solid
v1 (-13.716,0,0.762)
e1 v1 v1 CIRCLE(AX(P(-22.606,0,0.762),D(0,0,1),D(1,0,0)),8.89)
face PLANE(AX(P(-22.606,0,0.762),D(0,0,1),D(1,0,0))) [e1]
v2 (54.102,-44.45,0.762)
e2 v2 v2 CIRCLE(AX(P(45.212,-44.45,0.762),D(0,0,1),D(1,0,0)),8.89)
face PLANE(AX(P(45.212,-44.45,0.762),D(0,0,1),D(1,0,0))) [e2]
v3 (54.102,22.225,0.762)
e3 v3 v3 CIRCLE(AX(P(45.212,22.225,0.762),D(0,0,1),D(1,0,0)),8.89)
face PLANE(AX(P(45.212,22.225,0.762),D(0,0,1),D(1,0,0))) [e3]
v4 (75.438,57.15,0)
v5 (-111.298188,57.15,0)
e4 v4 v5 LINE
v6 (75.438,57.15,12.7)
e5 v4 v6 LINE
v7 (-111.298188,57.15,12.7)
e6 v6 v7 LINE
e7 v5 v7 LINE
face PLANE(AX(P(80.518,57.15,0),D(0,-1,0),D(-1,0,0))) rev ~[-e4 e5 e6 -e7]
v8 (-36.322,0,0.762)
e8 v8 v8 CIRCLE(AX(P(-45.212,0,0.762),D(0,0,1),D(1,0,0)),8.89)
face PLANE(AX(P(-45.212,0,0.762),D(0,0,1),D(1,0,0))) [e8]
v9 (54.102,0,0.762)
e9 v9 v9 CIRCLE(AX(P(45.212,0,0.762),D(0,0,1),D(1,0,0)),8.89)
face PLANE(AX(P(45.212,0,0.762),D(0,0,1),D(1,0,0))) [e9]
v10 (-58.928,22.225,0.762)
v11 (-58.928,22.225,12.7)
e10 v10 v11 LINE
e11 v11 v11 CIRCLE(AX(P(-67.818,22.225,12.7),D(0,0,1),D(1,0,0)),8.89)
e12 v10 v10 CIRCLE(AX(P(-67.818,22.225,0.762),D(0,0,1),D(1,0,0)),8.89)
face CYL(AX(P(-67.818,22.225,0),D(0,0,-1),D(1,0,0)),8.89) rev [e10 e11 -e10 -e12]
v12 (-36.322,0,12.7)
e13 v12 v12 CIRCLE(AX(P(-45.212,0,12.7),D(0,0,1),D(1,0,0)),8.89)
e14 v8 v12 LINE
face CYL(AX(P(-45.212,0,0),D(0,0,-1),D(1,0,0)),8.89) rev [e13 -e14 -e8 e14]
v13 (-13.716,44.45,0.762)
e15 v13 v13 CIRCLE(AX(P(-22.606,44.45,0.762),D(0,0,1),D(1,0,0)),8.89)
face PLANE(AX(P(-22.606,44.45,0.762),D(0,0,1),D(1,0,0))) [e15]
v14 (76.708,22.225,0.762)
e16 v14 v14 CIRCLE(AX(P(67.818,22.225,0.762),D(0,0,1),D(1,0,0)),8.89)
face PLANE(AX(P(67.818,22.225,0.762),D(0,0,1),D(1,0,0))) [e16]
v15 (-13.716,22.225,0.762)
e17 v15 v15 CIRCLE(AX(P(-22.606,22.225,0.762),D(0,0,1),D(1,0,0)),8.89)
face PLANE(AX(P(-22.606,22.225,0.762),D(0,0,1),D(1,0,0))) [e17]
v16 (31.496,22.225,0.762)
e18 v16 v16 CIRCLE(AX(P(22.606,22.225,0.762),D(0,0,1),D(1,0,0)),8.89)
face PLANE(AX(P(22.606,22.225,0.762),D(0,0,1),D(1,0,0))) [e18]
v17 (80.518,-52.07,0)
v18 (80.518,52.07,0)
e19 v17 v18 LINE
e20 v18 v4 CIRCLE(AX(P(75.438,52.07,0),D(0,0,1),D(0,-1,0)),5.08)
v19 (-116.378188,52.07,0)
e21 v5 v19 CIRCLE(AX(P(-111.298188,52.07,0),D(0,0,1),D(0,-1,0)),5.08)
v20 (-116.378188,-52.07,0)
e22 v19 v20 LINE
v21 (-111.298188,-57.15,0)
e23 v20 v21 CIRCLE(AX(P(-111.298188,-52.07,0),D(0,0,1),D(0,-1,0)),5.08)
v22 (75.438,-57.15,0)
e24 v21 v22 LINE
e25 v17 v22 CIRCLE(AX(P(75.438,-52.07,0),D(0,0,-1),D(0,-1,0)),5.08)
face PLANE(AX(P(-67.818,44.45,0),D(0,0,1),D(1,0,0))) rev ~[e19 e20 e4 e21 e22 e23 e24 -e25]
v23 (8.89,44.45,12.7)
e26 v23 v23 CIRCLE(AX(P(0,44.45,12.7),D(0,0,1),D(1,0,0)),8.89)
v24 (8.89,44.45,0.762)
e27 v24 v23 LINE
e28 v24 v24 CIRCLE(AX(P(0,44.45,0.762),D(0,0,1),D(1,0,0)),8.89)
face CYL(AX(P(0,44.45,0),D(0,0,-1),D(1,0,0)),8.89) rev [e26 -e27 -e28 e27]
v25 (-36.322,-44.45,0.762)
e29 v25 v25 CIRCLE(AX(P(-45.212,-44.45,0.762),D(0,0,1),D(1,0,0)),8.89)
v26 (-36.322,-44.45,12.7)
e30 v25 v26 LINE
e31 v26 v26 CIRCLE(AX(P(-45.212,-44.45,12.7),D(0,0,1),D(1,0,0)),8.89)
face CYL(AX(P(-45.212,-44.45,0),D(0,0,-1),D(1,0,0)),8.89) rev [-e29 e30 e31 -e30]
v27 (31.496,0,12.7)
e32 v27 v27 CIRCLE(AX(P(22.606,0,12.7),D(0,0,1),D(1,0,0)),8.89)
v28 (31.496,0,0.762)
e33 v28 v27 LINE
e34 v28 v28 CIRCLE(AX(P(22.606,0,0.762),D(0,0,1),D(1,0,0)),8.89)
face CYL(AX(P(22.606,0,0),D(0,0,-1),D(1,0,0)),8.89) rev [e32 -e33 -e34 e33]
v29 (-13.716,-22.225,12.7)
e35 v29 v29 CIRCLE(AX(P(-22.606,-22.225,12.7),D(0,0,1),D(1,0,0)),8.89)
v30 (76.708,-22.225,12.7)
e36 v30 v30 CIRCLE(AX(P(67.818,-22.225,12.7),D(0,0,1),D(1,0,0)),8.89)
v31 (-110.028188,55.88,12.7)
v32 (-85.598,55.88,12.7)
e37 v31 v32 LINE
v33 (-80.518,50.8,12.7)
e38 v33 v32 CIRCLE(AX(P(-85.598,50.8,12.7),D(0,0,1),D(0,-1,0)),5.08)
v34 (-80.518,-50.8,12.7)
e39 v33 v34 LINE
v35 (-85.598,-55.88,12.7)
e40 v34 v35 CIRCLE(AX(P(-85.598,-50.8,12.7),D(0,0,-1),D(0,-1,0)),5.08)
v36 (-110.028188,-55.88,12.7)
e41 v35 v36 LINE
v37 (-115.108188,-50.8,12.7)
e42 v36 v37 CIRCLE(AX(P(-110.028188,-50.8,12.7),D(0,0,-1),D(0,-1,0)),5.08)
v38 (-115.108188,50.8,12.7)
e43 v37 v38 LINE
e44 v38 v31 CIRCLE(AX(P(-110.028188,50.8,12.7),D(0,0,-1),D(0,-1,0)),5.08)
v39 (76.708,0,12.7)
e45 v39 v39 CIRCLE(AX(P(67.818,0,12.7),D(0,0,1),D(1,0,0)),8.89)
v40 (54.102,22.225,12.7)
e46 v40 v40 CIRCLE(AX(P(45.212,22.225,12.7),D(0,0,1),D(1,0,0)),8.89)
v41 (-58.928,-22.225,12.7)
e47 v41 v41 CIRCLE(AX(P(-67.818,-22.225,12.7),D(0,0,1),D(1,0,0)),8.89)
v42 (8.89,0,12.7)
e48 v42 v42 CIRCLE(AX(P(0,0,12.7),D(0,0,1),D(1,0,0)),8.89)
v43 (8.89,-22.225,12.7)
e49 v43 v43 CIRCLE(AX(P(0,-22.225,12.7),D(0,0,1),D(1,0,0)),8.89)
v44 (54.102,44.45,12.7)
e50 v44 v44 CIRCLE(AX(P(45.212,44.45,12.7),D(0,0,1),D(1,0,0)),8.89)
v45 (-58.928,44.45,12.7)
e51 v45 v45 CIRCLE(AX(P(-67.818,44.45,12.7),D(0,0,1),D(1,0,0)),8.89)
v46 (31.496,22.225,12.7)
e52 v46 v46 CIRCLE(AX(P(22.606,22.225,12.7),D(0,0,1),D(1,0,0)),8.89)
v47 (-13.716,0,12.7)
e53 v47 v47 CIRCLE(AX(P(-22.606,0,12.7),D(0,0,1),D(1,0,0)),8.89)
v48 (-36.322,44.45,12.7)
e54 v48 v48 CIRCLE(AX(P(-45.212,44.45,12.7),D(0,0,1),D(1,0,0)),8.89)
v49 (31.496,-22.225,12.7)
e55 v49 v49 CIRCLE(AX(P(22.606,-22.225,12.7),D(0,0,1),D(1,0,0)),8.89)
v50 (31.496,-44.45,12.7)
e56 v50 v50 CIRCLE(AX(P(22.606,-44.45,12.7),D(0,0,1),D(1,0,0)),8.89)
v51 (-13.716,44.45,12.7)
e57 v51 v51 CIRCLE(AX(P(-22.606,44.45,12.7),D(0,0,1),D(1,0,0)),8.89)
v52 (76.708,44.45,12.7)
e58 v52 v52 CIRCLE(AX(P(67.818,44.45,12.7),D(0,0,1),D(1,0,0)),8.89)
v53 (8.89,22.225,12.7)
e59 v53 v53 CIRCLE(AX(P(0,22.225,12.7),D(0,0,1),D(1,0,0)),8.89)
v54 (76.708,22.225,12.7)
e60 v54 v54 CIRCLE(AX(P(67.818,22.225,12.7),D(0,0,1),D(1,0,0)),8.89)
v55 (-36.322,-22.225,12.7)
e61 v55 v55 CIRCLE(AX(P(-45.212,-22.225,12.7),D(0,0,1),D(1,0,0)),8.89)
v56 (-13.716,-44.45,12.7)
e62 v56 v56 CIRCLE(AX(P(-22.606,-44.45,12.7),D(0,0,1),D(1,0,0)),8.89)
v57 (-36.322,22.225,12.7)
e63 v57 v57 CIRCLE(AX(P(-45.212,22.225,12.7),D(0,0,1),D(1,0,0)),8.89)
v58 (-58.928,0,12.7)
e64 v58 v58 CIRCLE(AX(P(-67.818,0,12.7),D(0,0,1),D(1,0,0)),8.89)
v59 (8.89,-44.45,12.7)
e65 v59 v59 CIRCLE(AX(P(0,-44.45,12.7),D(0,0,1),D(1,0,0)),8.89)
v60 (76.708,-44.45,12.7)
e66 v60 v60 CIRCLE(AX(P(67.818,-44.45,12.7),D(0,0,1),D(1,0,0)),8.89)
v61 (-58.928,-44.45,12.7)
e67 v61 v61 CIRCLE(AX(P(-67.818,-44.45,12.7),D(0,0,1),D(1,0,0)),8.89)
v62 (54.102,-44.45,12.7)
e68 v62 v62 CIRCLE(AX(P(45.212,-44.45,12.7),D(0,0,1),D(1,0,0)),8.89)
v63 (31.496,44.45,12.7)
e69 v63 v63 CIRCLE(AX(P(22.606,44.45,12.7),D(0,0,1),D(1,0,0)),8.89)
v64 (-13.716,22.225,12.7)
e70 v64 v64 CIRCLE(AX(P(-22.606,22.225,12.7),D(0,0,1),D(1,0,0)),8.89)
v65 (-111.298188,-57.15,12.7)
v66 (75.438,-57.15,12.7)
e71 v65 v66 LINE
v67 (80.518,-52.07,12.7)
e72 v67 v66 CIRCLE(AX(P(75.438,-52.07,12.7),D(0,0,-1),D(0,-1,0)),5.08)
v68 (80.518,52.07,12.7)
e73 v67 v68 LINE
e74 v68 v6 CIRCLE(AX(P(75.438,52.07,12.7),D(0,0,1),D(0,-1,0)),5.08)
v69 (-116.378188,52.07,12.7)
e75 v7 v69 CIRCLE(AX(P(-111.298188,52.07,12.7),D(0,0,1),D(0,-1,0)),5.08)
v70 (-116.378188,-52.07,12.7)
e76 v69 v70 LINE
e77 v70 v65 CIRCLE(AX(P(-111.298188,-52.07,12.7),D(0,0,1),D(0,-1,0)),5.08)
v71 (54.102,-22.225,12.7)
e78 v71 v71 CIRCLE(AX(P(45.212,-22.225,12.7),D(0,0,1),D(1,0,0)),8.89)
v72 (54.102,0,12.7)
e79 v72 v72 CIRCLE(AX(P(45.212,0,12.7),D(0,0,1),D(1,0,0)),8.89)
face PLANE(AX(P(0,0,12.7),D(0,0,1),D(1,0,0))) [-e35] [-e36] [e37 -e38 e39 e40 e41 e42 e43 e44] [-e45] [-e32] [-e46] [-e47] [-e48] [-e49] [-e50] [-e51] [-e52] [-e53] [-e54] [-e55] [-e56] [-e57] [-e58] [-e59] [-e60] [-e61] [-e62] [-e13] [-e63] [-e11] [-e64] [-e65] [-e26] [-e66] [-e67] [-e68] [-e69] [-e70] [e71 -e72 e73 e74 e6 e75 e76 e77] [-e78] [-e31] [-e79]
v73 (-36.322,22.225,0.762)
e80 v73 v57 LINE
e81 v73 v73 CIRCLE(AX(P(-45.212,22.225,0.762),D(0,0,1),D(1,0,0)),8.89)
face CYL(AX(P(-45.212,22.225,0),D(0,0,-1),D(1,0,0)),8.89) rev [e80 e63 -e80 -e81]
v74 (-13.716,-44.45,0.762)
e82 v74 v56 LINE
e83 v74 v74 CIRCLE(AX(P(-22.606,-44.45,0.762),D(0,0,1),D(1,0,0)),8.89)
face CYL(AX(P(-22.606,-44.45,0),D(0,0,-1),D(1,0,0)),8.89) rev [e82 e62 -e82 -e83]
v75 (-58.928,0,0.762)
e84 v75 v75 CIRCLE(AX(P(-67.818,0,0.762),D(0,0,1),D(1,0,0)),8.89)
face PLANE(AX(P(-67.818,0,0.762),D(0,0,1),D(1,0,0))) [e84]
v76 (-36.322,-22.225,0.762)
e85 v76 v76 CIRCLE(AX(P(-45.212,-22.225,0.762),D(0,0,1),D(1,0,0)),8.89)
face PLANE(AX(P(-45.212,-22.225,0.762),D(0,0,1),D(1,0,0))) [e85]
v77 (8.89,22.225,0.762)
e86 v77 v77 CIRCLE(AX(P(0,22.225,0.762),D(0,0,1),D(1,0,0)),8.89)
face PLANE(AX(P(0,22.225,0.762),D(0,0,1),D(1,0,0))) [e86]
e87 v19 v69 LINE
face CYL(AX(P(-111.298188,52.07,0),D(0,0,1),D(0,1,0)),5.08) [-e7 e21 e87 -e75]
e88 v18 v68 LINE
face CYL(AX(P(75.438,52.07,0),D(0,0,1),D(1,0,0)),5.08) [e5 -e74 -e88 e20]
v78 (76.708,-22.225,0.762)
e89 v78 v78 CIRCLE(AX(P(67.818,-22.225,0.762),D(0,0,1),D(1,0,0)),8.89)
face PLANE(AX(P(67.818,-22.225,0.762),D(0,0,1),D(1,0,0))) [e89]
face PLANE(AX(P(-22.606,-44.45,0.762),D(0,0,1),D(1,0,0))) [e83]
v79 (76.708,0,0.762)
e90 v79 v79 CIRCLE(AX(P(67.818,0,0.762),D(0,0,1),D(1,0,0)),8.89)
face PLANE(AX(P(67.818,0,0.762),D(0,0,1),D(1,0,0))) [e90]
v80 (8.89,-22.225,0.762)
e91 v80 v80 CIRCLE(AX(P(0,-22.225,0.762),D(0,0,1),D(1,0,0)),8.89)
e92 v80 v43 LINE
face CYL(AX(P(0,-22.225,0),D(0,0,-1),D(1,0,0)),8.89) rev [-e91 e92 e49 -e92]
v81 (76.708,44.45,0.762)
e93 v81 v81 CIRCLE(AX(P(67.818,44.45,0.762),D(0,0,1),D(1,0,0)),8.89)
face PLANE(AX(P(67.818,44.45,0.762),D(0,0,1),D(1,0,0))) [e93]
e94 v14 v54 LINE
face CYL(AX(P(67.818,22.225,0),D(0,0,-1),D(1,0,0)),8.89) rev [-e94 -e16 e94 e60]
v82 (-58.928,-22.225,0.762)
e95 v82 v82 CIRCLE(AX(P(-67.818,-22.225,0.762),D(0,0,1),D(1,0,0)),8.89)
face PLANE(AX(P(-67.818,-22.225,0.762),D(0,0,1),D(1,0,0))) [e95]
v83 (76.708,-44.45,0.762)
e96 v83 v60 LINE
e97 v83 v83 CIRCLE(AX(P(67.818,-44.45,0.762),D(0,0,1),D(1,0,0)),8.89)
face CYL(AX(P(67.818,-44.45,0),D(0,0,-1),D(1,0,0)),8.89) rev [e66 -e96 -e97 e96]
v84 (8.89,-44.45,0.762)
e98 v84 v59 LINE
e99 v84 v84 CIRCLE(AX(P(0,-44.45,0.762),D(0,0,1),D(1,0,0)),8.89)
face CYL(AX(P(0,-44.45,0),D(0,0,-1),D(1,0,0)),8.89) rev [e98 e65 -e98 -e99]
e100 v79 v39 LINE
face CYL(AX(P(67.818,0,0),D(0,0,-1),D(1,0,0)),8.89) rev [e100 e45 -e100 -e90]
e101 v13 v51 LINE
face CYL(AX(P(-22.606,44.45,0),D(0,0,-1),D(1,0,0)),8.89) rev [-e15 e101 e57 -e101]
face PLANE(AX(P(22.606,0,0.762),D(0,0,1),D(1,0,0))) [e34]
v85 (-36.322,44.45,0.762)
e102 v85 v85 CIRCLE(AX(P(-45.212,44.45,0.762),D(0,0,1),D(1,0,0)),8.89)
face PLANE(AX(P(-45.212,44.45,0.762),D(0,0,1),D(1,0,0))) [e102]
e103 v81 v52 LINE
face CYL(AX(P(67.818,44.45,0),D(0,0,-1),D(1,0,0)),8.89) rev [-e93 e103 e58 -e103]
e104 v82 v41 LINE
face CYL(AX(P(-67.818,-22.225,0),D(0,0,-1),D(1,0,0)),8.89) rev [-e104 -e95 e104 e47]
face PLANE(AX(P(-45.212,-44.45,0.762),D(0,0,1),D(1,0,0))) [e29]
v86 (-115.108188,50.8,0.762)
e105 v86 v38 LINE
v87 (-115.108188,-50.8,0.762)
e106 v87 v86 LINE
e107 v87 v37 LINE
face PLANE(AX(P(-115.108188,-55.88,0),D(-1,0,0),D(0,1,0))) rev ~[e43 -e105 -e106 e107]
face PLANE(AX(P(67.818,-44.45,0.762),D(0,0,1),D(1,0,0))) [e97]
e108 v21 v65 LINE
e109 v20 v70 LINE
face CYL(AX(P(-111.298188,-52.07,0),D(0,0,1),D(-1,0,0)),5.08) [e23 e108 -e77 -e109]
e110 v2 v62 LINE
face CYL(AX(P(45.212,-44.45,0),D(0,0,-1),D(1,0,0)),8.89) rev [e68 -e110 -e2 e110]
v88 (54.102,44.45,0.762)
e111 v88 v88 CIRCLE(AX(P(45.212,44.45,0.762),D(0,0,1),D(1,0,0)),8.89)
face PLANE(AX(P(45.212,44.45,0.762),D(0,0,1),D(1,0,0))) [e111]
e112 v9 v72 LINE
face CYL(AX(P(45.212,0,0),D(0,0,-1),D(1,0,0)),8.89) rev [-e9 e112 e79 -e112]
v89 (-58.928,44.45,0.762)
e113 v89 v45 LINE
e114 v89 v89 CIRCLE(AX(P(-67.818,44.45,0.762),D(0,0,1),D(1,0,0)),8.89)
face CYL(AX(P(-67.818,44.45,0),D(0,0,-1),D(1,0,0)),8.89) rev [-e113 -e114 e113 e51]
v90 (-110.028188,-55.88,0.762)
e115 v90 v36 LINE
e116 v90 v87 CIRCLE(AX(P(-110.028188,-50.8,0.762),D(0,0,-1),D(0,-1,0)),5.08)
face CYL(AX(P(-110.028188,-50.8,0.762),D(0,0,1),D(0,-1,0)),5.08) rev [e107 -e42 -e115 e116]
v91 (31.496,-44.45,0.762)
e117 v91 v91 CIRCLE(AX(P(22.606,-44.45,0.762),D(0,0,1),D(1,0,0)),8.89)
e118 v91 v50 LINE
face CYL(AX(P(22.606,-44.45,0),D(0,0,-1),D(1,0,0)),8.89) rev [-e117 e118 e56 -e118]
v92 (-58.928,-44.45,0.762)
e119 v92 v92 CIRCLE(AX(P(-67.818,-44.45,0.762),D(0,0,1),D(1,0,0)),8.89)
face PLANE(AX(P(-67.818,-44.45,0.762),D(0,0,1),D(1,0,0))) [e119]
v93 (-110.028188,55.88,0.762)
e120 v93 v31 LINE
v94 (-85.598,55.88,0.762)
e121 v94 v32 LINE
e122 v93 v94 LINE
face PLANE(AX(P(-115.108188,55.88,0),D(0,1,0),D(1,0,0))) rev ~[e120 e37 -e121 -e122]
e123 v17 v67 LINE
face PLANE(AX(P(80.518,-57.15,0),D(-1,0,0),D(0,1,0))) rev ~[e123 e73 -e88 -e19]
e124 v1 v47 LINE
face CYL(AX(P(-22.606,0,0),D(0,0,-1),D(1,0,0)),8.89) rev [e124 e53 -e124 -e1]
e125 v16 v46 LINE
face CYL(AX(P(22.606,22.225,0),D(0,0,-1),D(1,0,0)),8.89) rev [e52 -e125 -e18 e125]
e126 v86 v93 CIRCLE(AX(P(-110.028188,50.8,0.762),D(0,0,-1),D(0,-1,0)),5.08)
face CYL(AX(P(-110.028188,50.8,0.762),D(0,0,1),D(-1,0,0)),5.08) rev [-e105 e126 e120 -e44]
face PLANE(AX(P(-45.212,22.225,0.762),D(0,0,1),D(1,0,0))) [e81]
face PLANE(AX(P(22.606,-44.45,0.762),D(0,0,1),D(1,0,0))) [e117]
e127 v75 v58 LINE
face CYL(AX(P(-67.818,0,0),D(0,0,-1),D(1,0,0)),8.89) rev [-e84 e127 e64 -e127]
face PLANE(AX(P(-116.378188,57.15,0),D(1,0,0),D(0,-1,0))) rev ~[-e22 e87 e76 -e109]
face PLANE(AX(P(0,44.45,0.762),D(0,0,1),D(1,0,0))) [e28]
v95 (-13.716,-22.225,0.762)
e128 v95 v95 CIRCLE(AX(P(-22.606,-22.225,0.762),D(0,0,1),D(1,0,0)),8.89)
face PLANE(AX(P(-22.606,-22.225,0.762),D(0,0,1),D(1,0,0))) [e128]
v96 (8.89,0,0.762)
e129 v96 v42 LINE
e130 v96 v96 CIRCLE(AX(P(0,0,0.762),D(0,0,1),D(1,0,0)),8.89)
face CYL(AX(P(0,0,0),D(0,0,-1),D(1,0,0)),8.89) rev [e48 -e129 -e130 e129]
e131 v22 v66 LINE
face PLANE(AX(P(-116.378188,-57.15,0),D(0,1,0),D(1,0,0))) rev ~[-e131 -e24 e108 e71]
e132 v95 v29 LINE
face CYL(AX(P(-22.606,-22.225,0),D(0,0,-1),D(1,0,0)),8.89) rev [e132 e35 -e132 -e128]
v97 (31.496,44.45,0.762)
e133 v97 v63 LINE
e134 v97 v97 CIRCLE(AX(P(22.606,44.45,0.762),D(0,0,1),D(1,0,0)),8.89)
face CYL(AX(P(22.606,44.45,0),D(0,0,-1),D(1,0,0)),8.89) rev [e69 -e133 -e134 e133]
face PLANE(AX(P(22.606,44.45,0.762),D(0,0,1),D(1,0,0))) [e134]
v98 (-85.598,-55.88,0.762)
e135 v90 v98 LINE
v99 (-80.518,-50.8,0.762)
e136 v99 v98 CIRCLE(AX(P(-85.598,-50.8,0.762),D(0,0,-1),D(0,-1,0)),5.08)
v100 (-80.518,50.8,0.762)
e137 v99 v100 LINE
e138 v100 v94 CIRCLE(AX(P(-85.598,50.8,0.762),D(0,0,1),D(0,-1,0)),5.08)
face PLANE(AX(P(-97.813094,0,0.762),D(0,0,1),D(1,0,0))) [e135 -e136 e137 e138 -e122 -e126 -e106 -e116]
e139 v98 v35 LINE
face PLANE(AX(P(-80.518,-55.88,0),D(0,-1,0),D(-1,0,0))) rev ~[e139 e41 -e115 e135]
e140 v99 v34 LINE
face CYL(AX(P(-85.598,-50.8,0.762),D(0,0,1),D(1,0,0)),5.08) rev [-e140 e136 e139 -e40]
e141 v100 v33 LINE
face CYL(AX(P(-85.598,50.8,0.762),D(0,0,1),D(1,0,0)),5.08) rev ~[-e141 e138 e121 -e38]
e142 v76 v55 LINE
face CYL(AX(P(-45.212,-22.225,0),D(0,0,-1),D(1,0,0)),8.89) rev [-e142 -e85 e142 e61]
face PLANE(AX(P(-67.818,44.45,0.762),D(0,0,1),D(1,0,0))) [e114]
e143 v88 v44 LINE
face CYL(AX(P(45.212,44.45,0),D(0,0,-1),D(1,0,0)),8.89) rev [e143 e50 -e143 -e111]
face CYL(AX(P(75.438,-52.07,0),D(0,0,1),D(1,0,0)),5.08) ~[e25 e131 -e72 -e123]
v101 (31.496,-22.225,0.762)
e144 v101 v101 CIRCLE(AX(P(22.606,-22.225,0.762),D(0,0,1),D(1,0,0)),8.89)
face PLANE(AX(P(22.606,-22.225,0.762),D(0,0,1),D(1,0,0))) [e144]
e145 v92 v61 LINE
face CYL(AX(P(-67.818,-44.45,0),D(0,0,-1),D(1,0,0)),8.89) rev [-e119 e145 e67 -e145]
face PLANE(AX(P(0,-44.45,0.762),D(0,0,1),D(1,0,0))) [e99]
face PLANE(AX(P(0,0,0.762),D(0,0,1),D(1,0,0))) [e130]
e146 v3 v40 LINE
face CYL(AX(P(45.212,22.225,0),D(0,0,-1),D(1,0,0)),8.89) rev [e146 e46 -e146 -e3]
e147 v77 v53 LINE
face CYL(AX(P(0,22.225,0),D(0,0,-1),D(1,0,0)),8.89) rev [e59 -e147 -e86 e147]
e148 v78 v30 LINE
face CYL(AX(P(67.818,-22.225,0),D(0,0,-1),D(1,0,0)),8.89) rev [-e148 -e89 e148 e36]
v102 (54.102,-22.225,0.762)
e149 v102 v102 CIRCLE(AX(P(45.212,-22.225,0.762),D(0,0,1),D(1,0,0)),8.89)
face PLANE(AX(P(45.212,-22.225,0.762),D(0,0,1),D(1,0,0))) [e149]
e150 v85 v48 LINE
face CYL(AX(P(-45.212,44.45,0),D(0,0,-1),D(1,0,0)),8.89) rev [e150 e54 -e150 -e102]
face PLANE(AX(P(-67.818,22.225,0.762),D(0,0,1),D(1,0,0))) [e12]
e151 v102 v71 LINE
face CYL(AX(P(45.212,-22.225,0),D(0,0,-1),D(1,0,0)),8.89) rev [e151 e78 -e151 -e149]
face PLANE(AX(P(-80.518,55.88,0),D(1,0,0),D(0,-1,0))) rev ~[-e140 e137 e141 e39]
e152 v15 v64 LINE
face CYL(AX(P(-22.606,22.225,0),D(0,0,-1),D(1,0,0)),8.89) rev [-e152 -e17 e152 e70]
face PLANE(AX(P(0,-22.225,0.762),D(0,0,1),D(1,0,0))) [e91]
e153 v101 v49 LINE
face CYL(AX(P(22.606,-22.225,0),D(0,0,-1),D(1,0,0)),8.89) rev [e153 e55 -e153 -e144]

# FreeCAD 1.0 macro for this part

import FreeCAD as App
import Part
import Sketcher
from FreeCAD import Vector
Q = App.Units.Quantity


def edges_at(feature, points):
    """Names of the edges that pass closest to the given points."""
    edges = feature.Shape.Edges
    near = lambda p: min(range(len(edges)), key=lambda i: edges[i].distToShape(Part.Vertex(*p))[0])
    return sorted({f"Edge{near(p) + 1}" for p in points})

doc = App.newDocument("Part")
body = doc.addObject("PartDesign::Body", "Body")

# Sketch on XY plane
sketch1 = body.newObject("Sketcher::SketchObject", "Sketch")
sketch1.AttachmentSupport = (doc.getObject("XY_Plane"), [""])
sketch1.MapMode = "FlatFace"
sketch1.addGeometry(Part.LineSegment(Vector(81, -57, 0), Vector(81, 57, 0)), False)
sketch1.addGeometry(Part.LineSegment(Vector(81, 57, 0), Vector(-116, 57, 0)), False)
sketch1.addGeometry(Part.LineSegment(Vector(-116, 57, 0), Vector(-116, -57, 0)), False)
sketch1.addGeometry(Part.LineSegment(Vector(-116, -57, 0), Vector(81, -57, 0)), False)
sketch1.addGeometry(Part.LineSegment(Vector(-81, 56, 0), Vector(-81, -56, 0)), False)
sketch1.addGeometry(Part.LineSegment(Vector(-81, -56, 0), Vector(-115, -56, 0)), False)
sketch1.addGeometry(Part.LineSegment(Vector(-115, -56, 0), Vector(-115, 56, 0)), False)
sketch1.addGeometry(Part.LineSegment(Vector(-115, 56, 0), Vector(-81, 56, 0)), False)
sketch1.addGeometry(Part.Circle(Vector(-68, -44, 0), Vector(0, 0, 1), 9), False)
sketch1.addGeometry(Part.Circle(Vector(-45, -44, 0), Vector(0, 0, 1), 9), False)
sketch1.addGeometry(Part.Circle(Vector(-23, -44, 0), Vector(0, 0, 1), 9), False)
sketch1.addGeometry(Part.Circle(Vector(-68, -22, 0), Vector(0, 0, 1), 9), False)
sketch1.addGeometry(Part.Circle(Vector(-45, -22, 0), Vector(0, 0, 1), 9), False)
sketch1.addGeometry(Part.Circle(Vector(-68, 0, 0), Vector(0, 0, 1), 9), False)
sketch1.addGeometry(Part.Circle(Vector(-45, 0, 0), Vector(0, 0, 1), 9), False)
sketch1.addGeometry(Part.Circle(Vector(-23, -22, 0), Vector(0, 0, 1), 9), False)
sketch1.addGeometry(Part.Circle(Vector(-23, 0, 0), Vector(0, 0, 1), 9), False)
sketch1.addGeometry(Part.Circle(Vector(0, -44, 0), Vector(0, 0, 1), 9), False)
sketch1.addGeometry(Part.Circle(Vector(23, -44, 0), Vector(0, 0, 1), 9), False)
sketch1.addGeometry(Part.Circle(Vector(45, -44, 0), Vector(0, 0, 1), 9), False)
sketch1.addGeometry(Part.Circle(Vector(68, -44, 0), Vector(0, 0, 1), 9), False)
sketch1.addGeometry(Part.Circle(Vector(0, -22, 0), Vector(0, 0, 1), 9), False)
sketch1.addGeometry(Part.Circle(Vector(23, -22, 0), Vector(0, 0, 1), 9), False)
sketch1.addGeometry(Part.Circle(Vector(0, 0, 0), Vector(0, 0, 1), 9), False)
sketch1.addGeometry(Part.Circle(Vector(23, 0, 0), Vector(0, 0, 1), 9), False)
sketch1.addGeometry(Part.Circle(Vector(45, -22, 0), Vector(0, 0, 1), 9), False)
sketch1.addGeometry(Part.Circle(Vector(68, -22, 0), Vector(0, 0, 1), 9), False)
sketch1.addGeometry(Part.Circle(Vector(45, 0, 0), Vector(0, 0, 1), 9), False)
sketch1.addGeometry(Part.Circle(Vector(68, 0, 0), Vector(0, 0, 1), 9), False)
sketch1.addGeometry(Part.Circle(Vector(-68, 22, 0), Vector(0, 0, 1), 9), False)
sketch1.addGeometry(Part.Circle(Vector(-45, 22, 0), Vector(0, 0, 1), 9), False)
sketch1.addGeometry(Part.Circle(Vector(-23, 22, 0), Vector(0, 0, 1), 9), False)
sketch1.addGeometry(Part.Circle(Vector(-68, 44, 0), Vector(0, 0, 1), 9), False)
sketch1.addGeometry(Part.Circle(Vector(-45, 44, 0), Vector(0, 0, 1), 9), False)
sketch1.addGeometry(Part.Circle(Vector(-23, 44, 0), Vector(0, 0, 1), 9), False)
sketch1.addGeometry(Part.Circle(Vector(0, 22, 0), Vector(0, 0, 1), 9), False)
sketch1.addGeometry(Part.Circle(Vector(23, 22, 0), Vector(0, 0, 1), 9), False)
sketch1.addGeometry(Part.Circle(Vector(45, 22, 0), Vector(0, 0, 1), 9), False)
sketch1.addGeometry(Part.Circle(Vector(68, 22, 0), Vector(0, 0, 1), 9), False)
sketch1.addGeometry(Part.Circle(Vector(0, 44, 0), Vector(0, 0, 1), 9), False)
sketch1.addGeometry(Part.Circle(Vector(23, 44, 0), Vector(0, 0, 1), 9), False)
sketch1.addGeometry(Part.Circle(Vector(45, 44, 0), Vector(0, 0, 1), 9), False)
sketch1.addGeometry(Part.Circle(Vector(68, 44, 0), Vector(0, 0, 1), 9), False)
sketch1.addConstraint(Sketcher.Constraint("Coincident", 0, 2, 1, 1))
sketch1.addConstraint(Sketcher.Constraint("Coincident", 1, 2, 2, 1))
sketch1.addConstraint(Sketcher.Constraint("Coincident", 2, 2, 3, 1))
sketch1.addConstraint(Sketcher.Constraint("Coincident", 3, 2, 0, 1))
sketch1.addConstraint(Sketcher.Constraint("Coincident", 4, 2, 5, 1))
sketch1.addConstraint(Sketcher.Constraint("Coincident", 5, 2, 6, 1))
sketch1.addConstraint(Sketcher.Constraint("Coincident", 6, 2, 7, 1))
sketch1.addConstraint(Sketcher.Constraint("Coincident", 7, 2, 4, 1))
sketch1.addConstraint(Sketcher.Constraint("Vertical", 0))
sketch1.addConstraint(Sketcher.Constraint("Horizontal", 1))
sketch1.addConstraint(Sketcher.Constraint("Vertical", 2))
sketch1.addConstraint(Sketcher.Constraint("Horizontal", 3))
sketch1.addConstraint(Sketcher.Constraint("Vertical", 4))
sketch1.addConstraint(Sketcher.Constraint("Horizontal", 5))
sketch1.addConstraint(Sketcher.Constraint("Vertical", 6))
sketch1.addConstraint(Sketcher.Constraint("Horizontal", 7))
sketch1.addConstraint(Sketcher.Constraint("Coincident", 23, 3, -1, 1))
sketch1.addConstraint(Sketcher.Constraint("Equal", 8, 9))
sketch1.addConstraint(Sketcher.Constraint("Equal", 9, 10))
sketch1.addConstraint(Sketcher.Constraint("Equal", 10, 11))
sketch1.addConstraint(Sketcher.Constraint("Equal", 11, 12))
sketch1.addConstraint(Sketcher.Constraint("Equal", 12, 13))
sketch1.addConstraint(Sketcher.Constraint("Equal", 13, 14))
sketch1.addConstraint(Sketcher.Constraint("Equal", 14, 15))
sketch1.addConstraint(Sketcher.Constraint("Equal", 15, 16))
sketch1.addConstraint(Sketcher.Constraint("Equal", 16, 17))
sketch1.addConstraint(Sketcher.Constraint("Equal", 17, 18))
sketch1.addConstraint(Sketcher.Constraint("Equal", 18, 19))
sketch1.addConstraint(Sketcher.Constraint("Equal", 19, 20))
sketch1.addConstraint(Sketcher.Constraint("Equal", 20, 21))
sketch1.addConstraint(Sketcher.Constraint("Equal", 21, 22))
sketch1.addConstraint(Sketcher.Constraint("Equal", 22, 23))
sketch1.addConstraint(Sketcher.Constraint("Equal", 23, 24))
sketch1.addConstraint(Sketcher.Constraint("Equal", 24, 25))
sketch1.addConstraint(Sketcher.Constraint("Equal", 25, 26))
sketch1.addConstraint(Sketcher.Constraint("Equal", 26, 27))
sketch1.addConstraint(Sketcher.Constraint("Equal", 27, 28))
sketch1.addConstraint(Sketcher.Constraint("Equal", 28, 29))
sketch1.addConstraint(Sketcher.Constraint("Equal", 29, 30))
sketch1.addConstraint(Sketcher.Constraint("Equal", 30, 31))
sketch1.addConstraint(Sketcher.Constraint("Equal", 31, 32))
sketch1.addConstraint(Sketcher.Constraint("Equal", 32, 33))
sketch1.addConstraint(Sketcher.Constraint("Equal", 33, 34))
sketch1.addConstraint(Sketcher.Constraint("Equal", 34, 35))
sketch1.addConstraint(Sketcher.Constraint("Equal", 35, 36))
sketch1.addConstraint(Sketcher.Constraint("Equal", 36, 37))
sketch1.addConstraint(Sketcher.Constraint("Equal", 37, 38))
sketch1.addConstraint(Sketcher.Constraint("Equal", 38, 39))
sketch1.addConstraint(Sketcher.Constraint("Equal", 39, 40))
sketch1.addConstraint(Sketcher.Constraint("Equal", 40, 41))
sketch1.addConstraint(Sketcher.Constraint("Equal", 41, 42))
sketch1.addConstraint(Sketcher.Constraint("Symmetric", 16, 3, 24, 3, -1, 1))
sketch1.addConstraint(Sketcher.Constraint("Symmetric", 14, 3, 27, 3, -1, 1))
sketch1.addConstraint(Sketcher.Constraint("Symmetric", 13, 3, 28, 3, -1, 1))
sketch1.addConstraint(Sketcher.Constraint("Symmetric", 26, 3, 29, 3, -1, 1))
sketch1.addConstraint(Sketcher.Constraint("Symmetric", 25, 3, 30, 3, -1, 1))
sketch1.addConstraint(Sketcher.Constraint("Symmetric", 22, 3, 31, 3, -1, 1))
sketch1.addConstraint(Sketcher.Constraint("Symmetric", 20, 3, 32, 3, -1, 1))
sketch1.addConstraint(Sketcher.Constraint("Symmetric", 19, 3, 33, 3, -1, 1))
sketch1.addConstraint(Sketcher.Constraint("Symmetric", 18, 3, 34, 3, -1, 1))
sketch1.addConstraint(Sketcher.Constraint("Symmetric", 21, 3, 35, 3, -1, 1))
sketch1.addConstraint(Sketcher.Constraint("Symmetric", 15, 3, 36, 3, -1, 1))
sketch1.addConstraint(Sketcher.Constraint("Symmetric", 12, 3, 37, 3, -1, 1))
sketch1.addConstraint(Sketcher.Constraint("Symmetric", 11, 3, 38, 3, -1, 1))
sketch1.addConstraint(Sketcher.Constraint("Symmetric", 17, 3, 39, 3, -1, 1))
sketch1.addConstraint(Sketcher.Constraint("Symmetric", 10, 3, 40, 3, -1, 1))
sketch1.addConstraint(Sketcher.Constraint("Symmetric", 9, 3, 41, 3, -1, 1))
sketch1.addConstraint(Sketcher.Constraint("Symmetric", 8, 3, 42, 3, -1, 1))
sketch1.addConstraint(Sketcher.Constraint("Symmetric", 10, 3, 18, 3, -2))
sketch1.addConstraint(Sketcher.Constraint("Symmetric", 9, 3, 19, 3, -2))
sketch1.addConstraint(Sketcher.Constraint("Symmetric", 8, 3, 20, 3, -2))
sketch1.addConstraint(Sketcher.Constraint("Symmetric", 15, 3, 22, 3, -2))
sketch1.addConstraint(Sketcher.Constraint("Symmetric", 12, 3, 25, 3, -2))
sketch1.addConstraint(Sketcher.Constraint("Symmetric", 11, 3, 26, 3, -2))
sketch1.addConstraint(Sketcher.Constraint("PointOnObject", 13, 3, -1))
sketch1.addConstraint(Sketcher.Constraint("PointOnObject", 14, 3, -1))
sketch1.addConstraint(Sketcher.Constraint("PointOnObject", 16, 3, -1))
sketch1.addConstraint(Sketcher.Constraint("PointOnObject", 17, 3, -2))
sketch1.addConstraint(Sketcher.Constraint("PointOnObject", 21, 3, -2))
sketch1.addConstraint(Sketcher.Constraint("Horizontal", 8, 3, 9, 3))
sketch1.addConstraint(Sketcher.Constraint("Horizontal", 9, 3, 10, 3))
sketch1.addConstraint(Sketcher.Constraint("Horizontal", 11, 3, 12, 3))
sketch1.addConstraint(Sketcher.Constraint("Horizontal", 12, 3, 15, 3))
sketch1.addConstraint(Sketcher.Constraint("Horizontal", 10, 3, 17, 3))
sketch1.addConstraint(Sketcher.Constraint("Horizontal", 15, 3, 21, 3))
sketch1.addConstraint(Sketcher.Constraint("Vertical", 8, 3, 11, 3))
sketch1.addConstraint(Sketcher.Constraint("Vertical", 9, 3, 12, 3))
sketch1.addConstraint(Sketcher.Constraint("Vertical", 11, 3, 13, 3))
sketch1.addConstraint(Sketcher.Constraint("Vertical", 12, 3, 14, 3))
sketch1.addConstraint(Sketcher.Constraint("Vertical", 10, 3, 15, 3))
sketch1.addConstraint(Sketcher.Constraint("Vertical", 15, 3, 16, 3))
sketch1.addConstraint(Sketcher.Constraint("Diameter", 8, Q("0.7 in")))
sketch1.addConstraint(Sketcher.Constraint("DistanceY", 0, 1, 0, 2, Q("4.5 in")))
sketch1.addConstraint(Sketcher.Constraint("DistanceY", 4, 2, 4, 1, Q("4.4 in")))
sketch1.addConstraint(Sketcher.Constraint("DistanceY", 4, 2, -1, 1, Q("2.2 in")))
sketch1.addConstraint(Sketcher.Constraint("DistanceX", 42, 3, 0, 2, Q("0.5 in")))
sketch1.addConstraint(Sketcher.Constraint("DistanceY", 42, 3, 0, 2, Q("0.5 in")))
sketch1.addConstraint(Sketcher.Constraint("DistanceY", 2, 2, 8, 3, Q("0.5 in")))
sketch1.addConstraint(Sketcher.Constraint("DistanceX", 4, 2, 8, 3, Q("0.5 in")))
sketch1.addConstraint(Sketcher.Constraint("DistanceX", 8, 3, -1, 1, Q("2.67 in")))
sketch1.addConstraint(Sketcher.Constraint("DistanceX", 9, 3, -1, 1, Q("1.78 in")))
sketch1.addConstraint(Sketcher.Constraint("DistanceX", 10, 3, -1, 1, Q("0.89 in")))
sketch1.addConstraint(Sketcher.Constraint("DistanceY", 11, 3, 29, 3, Q("1.75 in")))
sketch1.addConstraint(Sketcher.Constraint("DistanceX", 2, 2, 5, 2, Q("0.05 in")))
sketch1.addConstraint(Sketcher.Constraint("DistanceX", 1, 2, 1, 1, Q("196.896188 mm")))
pad1 = body.newObject("PartDesign::Pad", "Pad")
pad1.Profile = sketch1
pad1.Length = Q("0.5 in")

# Sketch on XY plane
sketch2 = body.newObject("Sketcher::SketchObject", "Sketch001")
sketch2.AttachmentSupport = (doc.getObject("XY_Plane"), [""])
sketch2.MapMode = "FlatFace"
sketch2.addGeometry(Part.Circle(Vector(-68, 44, 0), Vector(0, 0, 1), 9), False)
sketch2.addGeometry(Part.Circle(Vector(-45, 44, 0), Vector(0, 0, 1), 9), False)
sketch2.addGeometry(Part.Circle(Vector(-23, 44, 0), Vector(0, 0, 1), 9), False)
sketch2.addGeometry(Part.Circle(Vector(0, 44, 0), Vector(0, 0, 1), 9), False)
sketch2.addGeometry(Part.Circle(Vector(23, 44, 0), Vector(0, 0, 1), 9), False)
sketch2.addGeometry(Part.Circle(Vector(45, 44, 0), Vector(0, 0, 1), 9), False)
sketch2.addGeometry(Part.Circle(Vector(68, 44, 0), Vector(0, 0, 1), 9), False)
sketch2.addGeometry(Part.Circle(Vector(68, 22, 0), Vector(0, 0, 1), 9), False)
sketch2.addGeometry(Part.Circle(Vector(45, 22, 0), Vector(0, 0, 1), 9), False)
sketch2.addGeometry(Part.Circle(Vector(23, 22, 0), Vector(0, 0, 1), 9), False)
sketch2.addGeometry(Part.Circle(Vector(0, 22, 0), Vector(0, 0, 1), 9), False)
sketch2.addGeometry(Part.Circle(Vector(-23, 22, 0), Vector(0, 0, 1), 9), False)
sketch2.addGeometry(Part.Circle(Vector(-45, 22, 0), Vector(0, 0, 1), 9), False)
sketch2.addGeometry(Part.Circle(Vector(-68, 22, 0), Vector(0, 0, 1), 9), False)
sketch2.addGeometry(Part.Circle(Vector(-68, 0, 0), Vector(0, 0, 1), 9), False)
sketch2.addGeometry(Part.Circle(Vector(-45, 0, 0), Vector(0, 0, 1), 9), False)
sketch2.addGeometry(Part.Circle(Vector(-23, 0, 0), Vector(0, 0, 1), 9), False)
sketch2.addGeometry(Part.Circle(Vector(0, 0, 0), Vector(0, 0, 1), 9), False)
sketch2.addGeometry(Part.Circle(Vector(23, 0, 0), Vector(0, 0, 1), 9), False)
sketch2.addGeometry(Part.Circle(Vector(45, 0, 0), Vector(0, 0, 1), 9), False)
sketch2.addGeometry(Part.Circle(Vector(68, 0, 0), Vector(0, 0, 1), 9), False)
sketch2.addGeometry(Part.Circle(Vector(68, -22, 0), Vector(0, 0, 1), 9), False)
sketch2.addGeometry(Part.Circle(Vector(45, -22, 0), Vector(0, 0, 1), 9), False)
sketch2.addGeometry(Part.Circle(Vector(23, -22, 0), Vector(0, 0, 1), 9), False)
sketch2.addGeometry(Part.Circle(Vector(0, -22, 0), Vector(0, 0, 1), 9), False)
sketch2.addGeometry(Part.Circle(Vector(-23, -22, 0), Vector(0, 0, 1), 9), False)
sketch2.addGeometry(Part.Circle(Vector(-45, -22, 0), Vector(0, 0, 1), 9), False)
sketch2.addGeometry(Part.Circle(Vector(-68, -22, 0), Vector(0, 0, 1), 9), False)
sketch2.addGeometry(Part.Circle(Vector(-68, -44, 0), Vector(0, 0, 1), 9), False)
sketch2.addGeometry(Part.Circle(Vector(-45, -44, 0), Vector(0, 0, 1), 9), False)
sketch2.addGeometry(Part.Circle(Vector(-23, -44, 0), Vector(0, 0, 1), 9), False)
sketch2.addGeometry(Part.Circle(Vector(0, -44, 0), Vector(0, 0, 1), 9), False)
sketch2.addGeometry(Part.Circle(Vector(23, -44, 0), Vector(0, 0, 1), 9), False)
sketch2.addGeometry(Part.Circle(Vector(45, -44, 0), Vector(0, 0, 1), 9), False)
sketch2.addGeometry(Part.Circle(Vector(68, -44, 0), Vector(0, 0, 1), 9), False)
sketch2.addGeometry(Part.LineSegment(Vector(-115, 56, 0), Vector(-115, -56, 0)), False)
sketch2.addGeometry(Part.LineSegment(Vector(-115, -56, 0), Vector(-81, -56, 0)), False)
sketch2.addGeometry(Part.LineSegment(Vector(-81, -56, 0), Vector(-81, 56, 0)), False)
sketch2.addGeometry(Part.LineSegment(Vector(-81, 56, 0), Vector(-115, 56, 0)), False)
sketch2.addConstraint(Sketcher.Constraint("Coincident", 35, 2, 36, 1))
sketch2.addConstraint(Sketcher.Constraint("Coincident", 36, 2, 37, 1))
sketch2.addConstraint(Sketcher.Constraint("Coincident", 37, 2, 38, 1))
sketch2.addConstraint(Sketcher.Constraint("Coincident", 38, 2, 35, 1))
sketch2.addConstraint(Sketcher.Constraint("Vertical", 35))
sketch2.addConstraint(Sketcher.Constraint("Horizontal", 36))
sketch2.addConstraint(Sketcher.Constraint("Vertical", 37))
sketch2.addConstraint(Sketcher.Constraint("Horizontal", 38))
sketch2.addConstraint(Sketcher.Constraint("Coincident", 17, 3, -1, 1))
sketch2.addConstraint(Sketcher.Constraint("Equal", 0, 1))
sketch2.addConstraint(Sketcher.Constraint("Equal", 1, 2))
sketch2.addConstraint(Sketcher.Constraint("Equal", 2, 3))
sketch2.addConstraint(Sketcher.Constraint("Equal", 3, 4))
sketch2.addConstraint(Sketcher.Constraint("Equal", 4, 5))
sketch2.addConstraint(Sketcher.Constraint("Equal", 5, 6))
sketch2.addConstraint(Sketcher.Constraint("Equal", 6, 7))
sketch2.addConstraint(Sketcher.Constraint("Equal", 7, 8))
sketch2.addConstraint(Sketcher.Constraint("Equal", 8, 9))
sketch2.addConstraint(Sketcher.Constraint("Equal", 9, 10))
sketch2.addConstraint(Sketcher.Constraint("Equal", 10, 11))
sketch2.addConstraint(Sketcher.Constraint("Equal", 11, 12))
sketch2.addConstraint(Sketcher.Constraint("Equal", 12, 13))
sketch2.addConstraint(Sketcher.Constraint("Equal", 13, 14))
sketch2.addConstraint(Sketcher.Constraint("Equal", 14, 15))
sketch2.addConstraint(Sketcher.Constraint("Equal", 15, 16))
sketch2.addConstraint(Sketcher.Constraint("Equal", 16, 17))
sketch2.addConstraint(Sketcher.Constraint("Equal", 17, 18))
sketch2.addConstraint(Sketcher.Constraint("Equal", 18, 19))
sketch2.addConstraint(Sketcher.Constraint("Equal", 19, 20))
sketch2.addConstraint(Sketcher.Constraint("Equal", 20, 21))
sketch2.addConstraint(Sketcher.Constraint("Equal", 21, 22))
sketch2.addConstraint(Sketcher.Constraint("Equal", 22, 23))
sketch2.addConstraint(Sketcher.Constraint("Equal", 23, 24))
sketch2.addConstraint(Sketcher.Constraint("Equal", 24, 25))
sketch2.addConstraint(Sketcher.Constraint("Equal", 25, 26))
sketch2.addConstraint(Sketcher.Constraint("Equal", 26, 27))
sketch2.addConstraint(Sketcher.Constraint("Equal", 27, 28))
sketch2.addConstraint(Sketcher.Constraint("Equal", 28, 29))
sketch2.addConstraint(Sketcher.Constraint("Equal", 29, 30))
sketch2.addConstraint(Sketcher.Constraint("Equal", 30, 31))
sketch2.addConstraint(Sketcher.Constraint("Equal", 31, 32))
sketch2.addConstraint(Sketcher.Constraint("Equal", 32, 33))
sketch2.addConstraint(Sketcher.Constraint("Equal", 33, 34))
sketch2.addConstraint(Sketcher.Constraint("Symmetric", 16, 3, 18, 3, -1, 1))
sketch2.addConstraint(Sketcher.Constraint("Symmetric", 15, 3, 19, 3, -1, 1))
sketch2.addConstraint(Sketcher.Constraint("Symmetric", 14, 3, 20, 3, -1, 1))
sketch2.addConstraint(Sketcher.Constraint("Symmetric", 13, 3, 21, 3, -1, 1))
sketch2.addConstraint(Sketcher.Constraint("Symmetric", 12, 3, 22, 3, -1, 1))
sketch2.addConstraint(Sketcher.Constraint("Symmetric", 11, 3, 23, 3, -1, 1))
sketch2.addConstraint(Sketcher.Constraint("Symmetric", 10, 3, 24, 3, -1, 1))
sketch2.addConstraint(Sketcher.Constraint("Symmetric", 9, 3, 25, 3, -1, 1))
sketch2.addConstraint(Sketcher.Constraint("Symmetric", 8, 3, 26, 3, -1, 1))
sketch2.addConstraint(Sketcher.Constraint("Symmetric", 7, 3, 27, 3, -1, 1))
sketch2.addConstraint(Sketcher.Constraint("Symmetric", 6, 3, 28, 3, -1, 1))
sketch2.addConstraint(Sketcher.Constraint("Symmetric", 5, 3, 29, 3, -1, 1))
sketch2.addConstraint(Sketcher.Constraint("Symmetric", 4, 3, 30, 3, -1, 1))
sketch2.addConstraint(Sketcher.Constraint("Symmetric", 3, 3, 31, 3, -1, 1))
sketch2.addConstraint(Sketcher.Constraint("Symmetric", 2, 3, 32, 3, -1, 1))
sketch2.addConstraint(Sketcher.Constraint("Symmetric", 1, 3, 33, 3, -1, 1))
sketch2.addConstraint(Sketcher.Constraint("Symmetric", 0, 3, 34, 3, -1, 1))
sketch2.addConstraint(Sketcher.Constraint("Symmetric", 2, 3, 4, 3, -2))
sketch2.addConstraint(Sketcher.Constraint("Symmetric", 1, 3, 5, 3, -2))
sketch2.addConstraint(Sketcher.Constraint("Symmetric", 0, 3, 6, 3, -2))
sketch2.addConstraint(Sketcher.Constraint("Symmetric", 9, 3, 11, 3, -2))
sketch2.addConstraint(Sketcher.Constraint("Symmetric", 8, 3, 12, 3, -2))
sketch2.addConstraint(Sketcher.Constraint("Symmetric", 7, 3, 13, 3, -2))
sketch2.addConstraint(Sketcher.Constraint("PointOnObject", 3, 3, -2))
sketch2.addConstraint(Sketcher.Constraint("PointOnObject", 10, 3, -2))
sketch2.addConstraint(Sketcher.Constraint("PointOnObject", 14, 3, -1))
sketch2.addConstraint(Sketcher.Constraint("PointOnObject", 15, 3, -1))
sketch2.addConstraint(Sketcher.Constraint("PointOnObject", 16, 3, -1))
sketch2.addConstraint(Sketcher.Constraint("Horizontal", 0, 3, 1, 3))
sketch2.addConstraint(Sketcher.Constraint("Horizontal", 1, 3, 2, 3))
sketch2.addConstraint(Sketcher.Constraint("Horizontal", 2, 3, 3, 3))
sketch2.addConstraint(Sketcher.Constraint("Horizontal", 7, 3, 8, 3))
sketch2.addConstraint(Sketcher.Constraint("Horizontal", 8, 3, 9, 3))
sketch2.addConstraint(Sketcher.Constraint("Horizontal", 9, 3, 10, 3))
sketch2.addConstraint(Sketcher.Constraint("Vertical", 6, 3, 7, 3))
sketch2.addConstraint(Sketcher.Constraint("Vertical", 5, 3, 8, 3))
sketch2.addConstraint(Sketcher.Constraint("Vertical", 4, 3, 9, 3))
sketch2.addConstraint(Sketcher.Constraint("Vertical", 13, 3, 14, 3))
sketch2.addConstraint(Sketcher.Constraint("Vertical", 12, 3, 15, 3))
sketch2.addConstraint(Sketcher.Constraint("Vertical", 11, 3, 16, 3))
sketch2.addConstraint(Sketcher.Constraint("Diameter", 0, Q("0.7 in")))
sketch2.addConstraint(Sketcher.Constraint("DistanceY", 35, 2, 35, 1, Q("4.4 in")))
sketch2.addConstraint(Sketcher.Constraint("DistanceY", 35, 2, -1, 1, Q("2.2 in")))
sketch2.addConstraint(Sketcher.Constraint("DistanceX", 36, 2, 28, 3, Q("0.5 in")))
sketch2.addConstraint(Sketcher.Constraint("DistanceX", 0, 3, -1, 1, Q("2.67 in")))
sketch2.addConstraint(Sketcher.Constraint("DistanceY", -1, 1, 0, 3, Q("1.75 in")))
sketch2.addConstraint(Sketcher.Constraint("DistanceX", 1, 3, -1, 1, Q("1.78 in")))
sketch2.addConstraint(Sketcher.Constraint("DistanceX", 2, 3, -1, 1, Q("0.89 in")))
sketch2.addConstraint(Sketcher.Constraint("DistanceY", 21, 3, 7, 3, Q("1.75 in")))
sketch2.addConstraint(Sketcher.Constraint("DistanceX", 36, 1, 36, 2, Q("34.590188 mm")))
pad2 = body.newObject("PartDesign::Pad", "Pad001")
pad2.Profile = sketch2
pad2.Length = Q("0.03 in")
doc.recompute()

fillet = body.newObject("PartDesign::Fillet", "Fillet")
fillet.Base = (pad2, edges_at(pad2, [
    (80.518, 57.15, 6.35),
    (80.518, -57.15, 6.35),
    (-80.518, -55.88, 6.731),
    (-80.518, 55.88, 6.731),
    (-115.108, 55.88, 6.731),
    (-115.108, -55.88, 6.731),
    (-116.378, -57.15, 6.35),
    (-116.378, 57.15, 6.35),
]))
fillet.Radius = Q("0.2 in")

doc.recompute()
